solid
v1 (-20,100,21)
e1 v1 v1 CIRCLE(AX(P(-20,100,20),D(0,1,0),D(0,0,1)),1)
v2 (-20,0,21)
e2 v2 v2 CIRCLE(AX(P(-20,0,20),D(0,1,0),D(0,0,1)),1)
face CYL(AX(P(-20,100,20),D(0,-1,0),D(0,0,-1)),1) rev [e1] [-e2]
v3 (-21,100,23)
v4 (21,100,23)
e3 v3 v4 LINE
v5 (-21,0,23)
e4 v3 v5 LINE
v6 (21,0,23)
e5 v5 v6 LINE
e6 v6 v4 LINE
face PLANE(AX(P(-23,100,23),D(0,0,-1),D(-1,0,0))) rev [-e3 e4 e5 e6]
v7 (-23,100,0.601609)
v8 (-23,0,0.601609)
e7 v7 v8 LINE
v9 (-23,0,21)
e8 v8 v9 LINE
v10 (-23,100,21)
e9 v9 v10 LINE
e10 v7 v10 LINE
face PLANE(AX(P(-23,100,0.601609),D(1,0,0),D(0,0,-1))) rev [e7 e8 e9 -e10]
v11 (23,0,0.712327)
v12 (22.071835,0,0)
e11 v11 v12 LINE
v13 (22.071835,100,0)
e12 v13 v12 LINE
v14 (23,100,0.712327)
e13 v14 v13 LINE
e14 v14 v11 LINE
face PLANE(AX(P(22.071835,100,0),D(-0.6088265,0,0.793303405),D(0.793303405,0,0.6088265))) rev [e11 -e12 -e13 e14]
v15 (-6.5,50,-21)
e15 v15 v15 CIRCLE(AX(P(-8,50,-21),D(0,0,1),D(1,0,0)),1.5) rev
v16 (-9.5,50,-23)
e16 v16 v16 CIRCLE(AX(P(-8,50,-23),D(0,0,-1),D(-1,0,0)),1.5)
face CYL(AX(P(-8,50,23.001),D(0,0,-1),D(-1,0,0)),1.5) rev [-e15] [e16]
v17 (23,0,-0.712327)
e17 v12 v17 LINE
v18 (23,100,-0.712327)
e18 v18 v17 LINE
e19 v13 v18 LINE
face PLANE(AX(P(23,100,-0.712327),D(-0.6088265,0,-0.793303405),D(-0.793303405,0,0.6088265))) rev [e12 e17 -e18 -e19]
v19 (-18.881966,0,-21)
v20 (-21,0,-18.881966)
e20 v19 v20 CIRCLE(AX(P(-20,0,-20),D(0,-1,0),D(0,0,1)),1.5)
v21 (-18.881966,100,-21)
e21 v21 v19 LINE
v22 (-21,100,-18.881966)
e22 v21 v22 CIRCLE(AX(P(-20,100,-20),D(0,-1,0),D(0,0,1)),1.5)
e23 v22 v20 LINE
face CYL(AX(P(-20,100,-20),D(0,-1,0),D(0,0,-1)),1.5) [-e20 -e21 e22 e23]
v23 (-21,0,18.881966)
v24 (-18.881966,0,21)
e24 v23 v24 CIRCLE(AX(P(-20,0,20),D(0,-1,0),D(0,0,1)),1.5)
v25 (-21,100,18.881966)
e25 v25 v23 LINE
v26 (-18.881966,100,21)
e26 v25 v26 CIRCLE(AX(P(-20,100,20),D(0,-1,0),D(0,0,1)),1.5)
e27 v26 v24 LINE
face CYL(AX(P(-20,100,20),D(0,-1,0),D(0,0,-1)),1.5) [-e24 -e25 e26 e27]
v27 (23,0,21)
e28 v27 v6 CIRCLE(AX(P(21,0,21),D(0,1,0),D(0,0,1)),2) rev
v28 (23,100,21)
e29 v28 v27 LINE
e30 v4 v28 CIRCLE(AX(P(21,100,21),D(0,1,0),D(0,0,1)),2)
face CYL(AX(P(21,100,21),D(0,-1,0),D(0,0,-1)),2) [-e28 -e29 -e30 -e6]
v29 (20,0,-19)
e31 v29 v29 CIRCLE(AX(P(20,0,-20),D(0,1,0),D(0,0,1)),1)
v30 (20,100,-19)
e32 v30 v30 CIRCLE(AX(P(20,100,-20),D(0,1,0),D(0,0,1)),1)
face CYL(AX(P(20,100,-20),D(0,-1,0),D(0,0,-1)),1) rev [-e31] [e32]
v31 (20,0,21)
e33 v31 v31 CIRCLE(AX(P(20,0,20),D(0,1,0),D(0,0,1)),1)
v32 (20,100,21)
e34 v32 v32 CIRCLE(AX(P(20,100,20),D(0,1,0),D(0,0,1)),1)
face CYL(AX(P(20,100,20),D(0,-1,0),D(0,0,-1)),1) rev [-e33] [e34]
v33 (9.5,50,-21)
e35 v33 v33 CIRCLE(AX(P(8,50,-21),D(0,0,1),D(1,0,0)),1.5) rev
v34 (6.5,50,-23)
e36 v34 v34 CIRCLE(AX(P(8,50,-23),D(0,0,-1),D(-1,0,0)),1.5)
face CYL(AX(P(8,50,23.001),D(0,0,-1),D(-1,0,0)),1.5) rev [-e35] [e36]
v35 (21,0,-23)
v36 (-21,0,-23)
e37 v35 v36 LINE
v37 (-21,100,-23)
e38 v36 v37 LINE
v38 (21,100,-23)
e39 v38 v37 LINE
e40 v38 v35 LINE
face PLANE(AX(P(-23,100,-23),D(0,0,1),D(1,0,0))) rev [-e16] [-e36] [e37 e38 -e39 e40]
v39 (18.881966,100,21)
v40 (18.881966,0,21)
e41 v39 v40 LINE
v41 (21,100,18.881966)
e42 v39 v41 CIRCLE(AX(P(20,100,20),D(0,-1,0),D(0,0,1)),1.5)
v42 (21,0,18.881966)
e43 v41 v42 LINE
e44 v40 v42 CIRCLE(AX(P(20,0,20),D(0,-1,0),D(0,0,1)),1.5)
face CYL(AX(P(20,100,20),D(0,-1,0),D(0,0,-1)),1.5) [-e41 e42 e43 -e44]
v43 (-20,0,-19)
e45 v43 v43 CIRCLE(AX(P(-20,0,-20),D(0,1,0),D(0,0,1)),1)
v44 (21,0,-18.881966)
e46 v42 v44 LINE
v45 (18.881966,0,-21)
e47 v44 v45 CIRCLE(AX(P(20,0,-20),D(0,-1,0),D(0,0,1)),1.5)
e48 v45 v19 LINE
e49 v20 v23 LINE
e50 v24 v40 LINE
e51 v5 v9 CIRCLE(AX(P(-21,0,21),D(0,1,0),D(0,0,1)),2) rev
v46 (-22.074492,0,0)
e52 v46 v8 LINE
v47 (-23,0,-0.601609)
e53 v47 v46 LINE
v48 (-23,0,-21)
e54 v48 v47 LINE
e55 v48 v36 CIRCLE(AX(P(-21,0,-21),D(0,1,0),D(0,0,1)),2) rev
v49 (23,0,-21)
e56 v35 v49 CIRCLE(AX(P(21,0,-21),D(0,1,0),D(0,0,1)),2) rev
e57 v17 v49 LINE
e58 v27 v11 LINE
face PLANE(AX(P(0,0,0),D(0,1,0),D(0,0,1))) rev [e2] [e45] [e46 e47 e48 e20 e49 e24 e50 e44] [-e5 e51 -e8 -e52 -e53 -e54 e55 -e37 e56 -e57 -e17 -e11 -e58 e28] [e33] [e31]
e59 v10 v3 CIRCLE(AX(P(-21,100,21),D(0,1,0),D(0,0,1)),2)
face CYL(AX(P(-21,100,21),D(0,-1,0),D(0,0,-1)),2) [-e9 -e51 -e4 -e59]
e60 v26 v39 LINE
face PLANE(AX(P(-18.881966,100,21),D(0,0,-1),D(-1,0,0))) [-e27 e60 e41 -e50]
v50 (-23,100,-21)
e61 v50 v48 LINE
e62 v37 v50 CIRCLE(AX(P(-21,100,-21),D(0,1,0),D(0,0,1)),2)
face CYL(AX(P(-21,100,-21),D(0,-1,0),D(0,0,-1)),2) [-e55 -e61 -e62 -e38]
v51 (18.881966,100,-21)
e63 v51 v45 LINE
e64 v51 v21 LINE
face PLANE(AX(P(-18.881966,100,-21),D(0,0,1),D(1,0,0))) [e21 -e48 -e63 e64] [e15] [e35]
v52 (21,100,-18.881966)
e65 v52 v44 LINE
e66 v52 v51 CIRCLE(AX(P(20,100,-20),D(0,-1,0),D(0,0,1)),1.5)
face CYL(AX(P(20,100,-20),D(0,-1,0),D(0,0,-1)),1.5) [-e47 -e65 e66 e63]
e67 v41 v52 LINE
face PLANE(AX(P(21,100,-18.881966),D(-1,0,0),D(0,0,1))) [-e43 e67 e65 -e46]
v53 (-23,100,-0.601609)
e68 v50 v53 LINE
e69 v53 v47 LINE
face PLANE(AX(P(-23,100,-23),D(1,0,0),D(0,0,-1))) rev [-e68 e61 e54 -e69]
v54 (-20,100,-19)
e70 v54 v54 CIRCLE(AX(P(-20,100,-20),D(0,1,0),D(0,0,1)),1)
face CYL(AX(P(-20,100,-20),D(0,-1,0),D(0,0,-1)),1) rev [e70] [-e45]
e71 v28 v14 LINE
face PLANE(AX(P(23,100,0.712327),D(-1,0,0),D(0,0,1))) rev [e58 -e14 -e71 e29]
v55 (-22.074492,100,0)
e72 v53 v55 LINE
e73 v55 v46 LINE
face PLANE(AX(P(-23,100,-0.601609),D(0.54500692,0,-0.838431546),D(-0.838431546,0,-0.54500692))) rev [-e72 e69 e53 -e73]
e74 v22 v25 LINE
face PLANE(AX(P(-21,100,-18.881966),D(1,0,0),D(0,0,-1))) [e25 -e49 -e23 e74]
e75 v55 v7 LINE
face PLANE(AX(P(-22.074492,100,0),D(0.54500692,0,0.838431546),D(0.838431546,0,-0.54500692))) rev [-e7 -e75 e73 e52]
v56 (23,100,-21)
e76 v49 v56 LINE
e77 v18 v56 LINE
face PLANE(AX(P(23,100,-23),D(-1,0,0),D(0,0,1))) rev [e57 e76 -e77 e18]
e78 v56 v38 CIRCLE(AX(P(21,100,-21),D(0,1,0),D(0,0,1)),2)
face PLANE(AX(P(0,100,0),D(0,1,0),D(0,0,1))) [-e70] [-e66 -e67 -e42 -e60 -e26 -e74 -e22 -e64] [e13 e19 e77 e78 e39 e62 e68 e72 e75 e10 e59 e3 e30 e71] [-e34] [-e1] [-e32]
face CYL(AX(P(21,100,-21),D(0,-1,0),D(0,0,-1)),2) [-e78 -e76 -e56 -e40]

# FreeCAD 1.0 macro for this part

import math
import FreeCAD as App
import Part
import Sketcher

V = App.Vector
Q = App.Units.Quantity


def edges_at(feature, points):
    """Names of the edges that pass closest to the given points."""
    edges = feature.Shape.Edges
    near = lambda p: min(range(len(edges)), key=lambda i: edges[i].distToShape(Part.Vertex(*p))[0])
    return sorted({f"Edge{near(p) + 1}" for p in points})

doc = App.newDocument("Part")
body = doc.addObject("PartDesign::Body", "Body")

# Sketch on XZ plane
sketch1 = body.newObject("Sketcher::SketchObject", "Sketch")
sketch1.AttachmentSupport = (doc.getObject("XZ_Plane"), [""])
sketch1.MapMode = "FlatFace"
sketch1.addGeometry([
    Part.LineSegment(V(-23, -0.6, 0), V(-22.1, 0, 0)),  # 0
    Part.LineSegment(V(-22.1, 0, 0), V(-23, 0.6, 0)),  # 1
    Part.LineSegment(V(-23, 0.6, 0), V(-23, 23, 0)),  # 2
    Part.LineSegment(V(-23, 23, 0), V(23, 23, 0)),  # 3
    Part.LineSegment(V(23, 23, 0), V(23, 0.7, 0)),  # 4
    Part.LineSegment(V(23, 0.7, 0), V(22.1, 0, 0)),  # 5
    Part.LineSegment(V(22.1, 0, 0), V(23, -0.7, 0)),  # 6
    Part.LineSegment(V(23, -0.7, 0), V(23, -23, 0)),  # 7
    Part.LineSegment(V(23, -23, 0), V(-23, -23, 0)),  # 8
    Part.LineSegment(V(-23, -23, 0), V(-23, -0.6, 0)),  # 9
    Part.Circle(V(-20, 20, 0), V(0, 0, 1), 1),  # 10
    Part.Circle(V(20, 20, 0), V(0, 0, 1), 1),  # 11
    Part.Circle(V(-20, -20, 0), V(0, 0, 1), 1),  # 12
    Part.ArcOfCircle(Part.Circle(V(-20, -20, 0), V(0, 0, 1), 1.5), math.radians(-42), math.radians(132)),  # 13
    Part.LineSegment(V(-18.9, -21, 0), V(18.9, -21, 0)),  # 14
    Part.ArcOfCircle(Part.Circle(V(20, -20, 0), V(0, 0, 1), 1.5), math.radians(48), math.radians(222)),  # 15
    Part.LineSegment(V(21, -18.9, 0), V(21, 18.9, 0)),  # 16
    Part.ArcOfCircle(Part.Circle(V(20, 20, 0), V(0, 0, 1), 1.5), math.radians(138), math.radians(312)),  # 17
    Part.LineSegment(V(18.9, 21, 0), V(-18.9, 21, 0)),  # 18
    Part.ArcOfCircle(Part.Circle(V(-20, 20, 0), V(0, 0, 1), 1.5), math.radians(-132), math.radians(42)),  # 19
    Part.LineSegment(V(-21, 18.9, 0), V(-21, -18.9, 0)),  # 20
    Part.Circle(V(20, -20, 0), V(0, 0, 1), 1),  # 21
], False)
sketch1.addConstraint([
    Sketcher.Constraint("Coincident", 0, 2, 1, 1),
    Sketcher.Constraint("Coincident", 1, 2, 2, 1),
    Sketcher.Constraint("Coincident", 2, 2, 3, 1),
    Sketcher.Constraint("Coincident", 3, 2, 4, 1),
    Sketcher.Constraint("Coincident", 4, 2, 5, 1),
    Sketcher.Constraint("Coincident", 5, 2, 6, 1),
    Sketcher.Constraint("Coincident", 6, 2, 7, 1),
    Sketcher.Constraint("Coincident", 7, 2, 8, 1),
    Sketcher.Constraint("Coincident", 8, 2, 9, 1),
    Sketcher.Constraint("Coincident", 9, 2, 0, 1),
    Sketcher.Constraint("Coincident", 13, 1, 14, 1),
    Sketcher.Constraint("Coincident", 14, 2, 15, 2),
    Sketcher.Constraint("Coincident", 15, 1, 16, 1),
    Sketcher.Constraint("Coincident", 16, 2, 17, 2),
    Sketcher.Constraint("Coincident", 17, 1, 18, 1),
    Sketcher.Constraint("Coincident", 18, 2, 19, 2),
    Sketcher.Constraint("Coincident", 19, 1, 20, 1),
    Sketcher.Constraint("Coincident", 20, 2, 13, 2),
    Sketcher.Constraint("Vertical", 2),
    Sketcher.Constraint("Horizontal", 3),
    Sketcher.Constraint("Vertical", 4),
    Sketcher.Constraint("Vertical", 7),
    Sketcher.Constraint("Horizontal", 8),
    Sketcher.Constraint("Vertical", 9),
    Sketcher.Constraint("Horizontal", 14),
    Sketcher.Constraint("Vertical", 16),
    Sketcher.Constraint("Horizontal", 18),
    Sketcher.Constraint("Vertical", 20),
    Sketcher.Constraint("Coincident", 13, 3, 12, 3),
    Sketcher.Constraint("Coincident", 17, 3, 11, 3),
    Sketcher.Constraint("Coincident", 19, 3, 10, 3),
    Sketcher.Constraint("Coincident", 21, 3, 15, 3),
    Sketcher.Constraint("Equal", 10, 11),
    Sketcher.Constraint("Equal", 11, 12),
    Sketcher.Constraint("Equal", 13, 15),
    Sketcher.Constraint("Equal", 15, 17),
    Sketcher.Constraint("Equal", 17, 19),
    Sketcher.Constraint("Equal", 12, 21),
    Sketcher.Constraint("Symmetric", 11, 3, 12, 3, -1, 1),
    Sketcher.Constraint("Symmetric", 10, 3, 15, 3, -1, 1),
    Sketcher.Constraint("Symmetric", 2, 2, 7, 2, -1, 1),
    Sketcher.Constraint("Symmetric", 10, 3, 11, 3, -2),
    Sketcher.Constraint("Symmetric", 4, 2, 6, 2, -1),
    Sketcher.Constraint("Symmetric", 1, 2, 9, 2, -1),
    Sketcher.Constraint("PointOnObject", 0, 2, -1),
    Sketcher.Constraint("PointOnObject", 5, 2, -1),
    Sketcher.Constraint("Horizontal", 16, 2, 19, 1),
    Sketcher.Constraint("Vertical", 14, 2, 17, 1),
    Sketcher.Constraint("Equal", 18, 16),
    Sketcher.Constraint("Diameter", 10, Q("2 mm")),
    Sketcher.Constraint("Radius", 13, Q("1.5 mm")),
    Sketcher.Constraint("DistanceX", 3, 1, 3, 2, Q("46 mm")),
    Sketcher.Constraint("DistanceX", 10, 3, -1, 1, Q("20 mm")),
    Sketcher.Constraint("DistanceY", -1, 1, 10, 3, Q("20 mm")),
    Sketcher.Constraint("DistanceY", -1, 1, 2, 2, Q("23 mm")),
    Sketcher.Constraint("DistanceY", 13, 1, -1, 1, Q("21 mm")),
    Sketcher.Constraint("Distance", 5, Q("1.17 mm")),
    Sketcher.Constraint("DistanceY", 2, 1, 2, 2, Q("22.398391 mm")),
    Sketcher.Constraint("DistanceY", 4, 2, 4, 1, Q("22.287673 mm")),
    Sketcher.Constraint("Distance", 0, Q("1.103856 mm")),
])
pad1 = body.newObject("PartDesign::Pad", "Pad")
pad1.Profile = sketch1
pad1.Length = 100
pad1.Reversed = True
doc.recompute()

fillet = body.newObject("PartDesign::Fillet", "Fillet")
fillet.Base = (pad1, edges_at(pad1, [(-23, 50, -23), (23, 50, -23)]))
fillet.Radius = 2

# Sketch on XY plane
sketch2 = body.newObject("Sketcher::SketchObject", "Sketch001")
sketch2.AttachmentSupport = (doc.getObject("XY_Plane"), [""])
sketch2.MapMode = "FlatFace"
sketch2.AttachmentOffset = App.Placement(V(0, 0, -23), App.Rotation())
sketch2.addGeometry(Part.Circle(V(-8, 50, 0), V(0, 0, 1), 1.5), False)
sketch2.addConstraint([
    Sketcher.Constraint("Diameter", 0, Q("3 mm")),
    Sketcher.Constraint("DistanceX", 0, 3, -1, 1, Q("8 mm")),
    Sketcher.Constraint("DistanceY", -1, 1, 0, 3, Q("50 mm")),
])
pocket1 = body.newObject("PartDesign::Pocket", "Pocket")
pocket1.Profile = sketch2
pocket1.Type = "UpToFirst"
pocket1.Reversed = True

# Sketch on XY plane
sketch3 = body.newObject("Sketcher::SketchObject", "Sketch002")
sketch3.AttachmentSupport = (doc.getObject("XY_Plane"), [""])
sketch3.MapMode = "FlatFace"
sketch3.AttachmentOffset = App.Placement(V(0, 0, -23), App.Rotation())
sketch3.addGeometry(Part.Circle(V(8, 50, 0), V(0, 0, 1), 1.5), False)
sketch3.addConstraint([
    Sketcher.Constraint("Diameter", 0, Q("3 mm")),
    Sketcher.Constraint("DistanceX", -1, 1, 0, 3, Q("8 mm")),
    Sketcher.Constraint("DistanceY", -1, 1, 0, 3, Q("50 mm")),
])
pocket2 = body.newObject("PartDesign::Pocket", "Pocket001")
pocket2.Profile = sketch3
pocket2.Type = "UpToFirst"
pocket2.Reversed = True
doc.recompute()

fillet2 = body.newObject("PartDesign::Fillet", "Fillet001")
fillet2.Base = (pocket2, edges_at(pocket2, [(23, 50, 23), (-23, 50, 23)]))
fillet2.Radius = 2

doc.recompute()
